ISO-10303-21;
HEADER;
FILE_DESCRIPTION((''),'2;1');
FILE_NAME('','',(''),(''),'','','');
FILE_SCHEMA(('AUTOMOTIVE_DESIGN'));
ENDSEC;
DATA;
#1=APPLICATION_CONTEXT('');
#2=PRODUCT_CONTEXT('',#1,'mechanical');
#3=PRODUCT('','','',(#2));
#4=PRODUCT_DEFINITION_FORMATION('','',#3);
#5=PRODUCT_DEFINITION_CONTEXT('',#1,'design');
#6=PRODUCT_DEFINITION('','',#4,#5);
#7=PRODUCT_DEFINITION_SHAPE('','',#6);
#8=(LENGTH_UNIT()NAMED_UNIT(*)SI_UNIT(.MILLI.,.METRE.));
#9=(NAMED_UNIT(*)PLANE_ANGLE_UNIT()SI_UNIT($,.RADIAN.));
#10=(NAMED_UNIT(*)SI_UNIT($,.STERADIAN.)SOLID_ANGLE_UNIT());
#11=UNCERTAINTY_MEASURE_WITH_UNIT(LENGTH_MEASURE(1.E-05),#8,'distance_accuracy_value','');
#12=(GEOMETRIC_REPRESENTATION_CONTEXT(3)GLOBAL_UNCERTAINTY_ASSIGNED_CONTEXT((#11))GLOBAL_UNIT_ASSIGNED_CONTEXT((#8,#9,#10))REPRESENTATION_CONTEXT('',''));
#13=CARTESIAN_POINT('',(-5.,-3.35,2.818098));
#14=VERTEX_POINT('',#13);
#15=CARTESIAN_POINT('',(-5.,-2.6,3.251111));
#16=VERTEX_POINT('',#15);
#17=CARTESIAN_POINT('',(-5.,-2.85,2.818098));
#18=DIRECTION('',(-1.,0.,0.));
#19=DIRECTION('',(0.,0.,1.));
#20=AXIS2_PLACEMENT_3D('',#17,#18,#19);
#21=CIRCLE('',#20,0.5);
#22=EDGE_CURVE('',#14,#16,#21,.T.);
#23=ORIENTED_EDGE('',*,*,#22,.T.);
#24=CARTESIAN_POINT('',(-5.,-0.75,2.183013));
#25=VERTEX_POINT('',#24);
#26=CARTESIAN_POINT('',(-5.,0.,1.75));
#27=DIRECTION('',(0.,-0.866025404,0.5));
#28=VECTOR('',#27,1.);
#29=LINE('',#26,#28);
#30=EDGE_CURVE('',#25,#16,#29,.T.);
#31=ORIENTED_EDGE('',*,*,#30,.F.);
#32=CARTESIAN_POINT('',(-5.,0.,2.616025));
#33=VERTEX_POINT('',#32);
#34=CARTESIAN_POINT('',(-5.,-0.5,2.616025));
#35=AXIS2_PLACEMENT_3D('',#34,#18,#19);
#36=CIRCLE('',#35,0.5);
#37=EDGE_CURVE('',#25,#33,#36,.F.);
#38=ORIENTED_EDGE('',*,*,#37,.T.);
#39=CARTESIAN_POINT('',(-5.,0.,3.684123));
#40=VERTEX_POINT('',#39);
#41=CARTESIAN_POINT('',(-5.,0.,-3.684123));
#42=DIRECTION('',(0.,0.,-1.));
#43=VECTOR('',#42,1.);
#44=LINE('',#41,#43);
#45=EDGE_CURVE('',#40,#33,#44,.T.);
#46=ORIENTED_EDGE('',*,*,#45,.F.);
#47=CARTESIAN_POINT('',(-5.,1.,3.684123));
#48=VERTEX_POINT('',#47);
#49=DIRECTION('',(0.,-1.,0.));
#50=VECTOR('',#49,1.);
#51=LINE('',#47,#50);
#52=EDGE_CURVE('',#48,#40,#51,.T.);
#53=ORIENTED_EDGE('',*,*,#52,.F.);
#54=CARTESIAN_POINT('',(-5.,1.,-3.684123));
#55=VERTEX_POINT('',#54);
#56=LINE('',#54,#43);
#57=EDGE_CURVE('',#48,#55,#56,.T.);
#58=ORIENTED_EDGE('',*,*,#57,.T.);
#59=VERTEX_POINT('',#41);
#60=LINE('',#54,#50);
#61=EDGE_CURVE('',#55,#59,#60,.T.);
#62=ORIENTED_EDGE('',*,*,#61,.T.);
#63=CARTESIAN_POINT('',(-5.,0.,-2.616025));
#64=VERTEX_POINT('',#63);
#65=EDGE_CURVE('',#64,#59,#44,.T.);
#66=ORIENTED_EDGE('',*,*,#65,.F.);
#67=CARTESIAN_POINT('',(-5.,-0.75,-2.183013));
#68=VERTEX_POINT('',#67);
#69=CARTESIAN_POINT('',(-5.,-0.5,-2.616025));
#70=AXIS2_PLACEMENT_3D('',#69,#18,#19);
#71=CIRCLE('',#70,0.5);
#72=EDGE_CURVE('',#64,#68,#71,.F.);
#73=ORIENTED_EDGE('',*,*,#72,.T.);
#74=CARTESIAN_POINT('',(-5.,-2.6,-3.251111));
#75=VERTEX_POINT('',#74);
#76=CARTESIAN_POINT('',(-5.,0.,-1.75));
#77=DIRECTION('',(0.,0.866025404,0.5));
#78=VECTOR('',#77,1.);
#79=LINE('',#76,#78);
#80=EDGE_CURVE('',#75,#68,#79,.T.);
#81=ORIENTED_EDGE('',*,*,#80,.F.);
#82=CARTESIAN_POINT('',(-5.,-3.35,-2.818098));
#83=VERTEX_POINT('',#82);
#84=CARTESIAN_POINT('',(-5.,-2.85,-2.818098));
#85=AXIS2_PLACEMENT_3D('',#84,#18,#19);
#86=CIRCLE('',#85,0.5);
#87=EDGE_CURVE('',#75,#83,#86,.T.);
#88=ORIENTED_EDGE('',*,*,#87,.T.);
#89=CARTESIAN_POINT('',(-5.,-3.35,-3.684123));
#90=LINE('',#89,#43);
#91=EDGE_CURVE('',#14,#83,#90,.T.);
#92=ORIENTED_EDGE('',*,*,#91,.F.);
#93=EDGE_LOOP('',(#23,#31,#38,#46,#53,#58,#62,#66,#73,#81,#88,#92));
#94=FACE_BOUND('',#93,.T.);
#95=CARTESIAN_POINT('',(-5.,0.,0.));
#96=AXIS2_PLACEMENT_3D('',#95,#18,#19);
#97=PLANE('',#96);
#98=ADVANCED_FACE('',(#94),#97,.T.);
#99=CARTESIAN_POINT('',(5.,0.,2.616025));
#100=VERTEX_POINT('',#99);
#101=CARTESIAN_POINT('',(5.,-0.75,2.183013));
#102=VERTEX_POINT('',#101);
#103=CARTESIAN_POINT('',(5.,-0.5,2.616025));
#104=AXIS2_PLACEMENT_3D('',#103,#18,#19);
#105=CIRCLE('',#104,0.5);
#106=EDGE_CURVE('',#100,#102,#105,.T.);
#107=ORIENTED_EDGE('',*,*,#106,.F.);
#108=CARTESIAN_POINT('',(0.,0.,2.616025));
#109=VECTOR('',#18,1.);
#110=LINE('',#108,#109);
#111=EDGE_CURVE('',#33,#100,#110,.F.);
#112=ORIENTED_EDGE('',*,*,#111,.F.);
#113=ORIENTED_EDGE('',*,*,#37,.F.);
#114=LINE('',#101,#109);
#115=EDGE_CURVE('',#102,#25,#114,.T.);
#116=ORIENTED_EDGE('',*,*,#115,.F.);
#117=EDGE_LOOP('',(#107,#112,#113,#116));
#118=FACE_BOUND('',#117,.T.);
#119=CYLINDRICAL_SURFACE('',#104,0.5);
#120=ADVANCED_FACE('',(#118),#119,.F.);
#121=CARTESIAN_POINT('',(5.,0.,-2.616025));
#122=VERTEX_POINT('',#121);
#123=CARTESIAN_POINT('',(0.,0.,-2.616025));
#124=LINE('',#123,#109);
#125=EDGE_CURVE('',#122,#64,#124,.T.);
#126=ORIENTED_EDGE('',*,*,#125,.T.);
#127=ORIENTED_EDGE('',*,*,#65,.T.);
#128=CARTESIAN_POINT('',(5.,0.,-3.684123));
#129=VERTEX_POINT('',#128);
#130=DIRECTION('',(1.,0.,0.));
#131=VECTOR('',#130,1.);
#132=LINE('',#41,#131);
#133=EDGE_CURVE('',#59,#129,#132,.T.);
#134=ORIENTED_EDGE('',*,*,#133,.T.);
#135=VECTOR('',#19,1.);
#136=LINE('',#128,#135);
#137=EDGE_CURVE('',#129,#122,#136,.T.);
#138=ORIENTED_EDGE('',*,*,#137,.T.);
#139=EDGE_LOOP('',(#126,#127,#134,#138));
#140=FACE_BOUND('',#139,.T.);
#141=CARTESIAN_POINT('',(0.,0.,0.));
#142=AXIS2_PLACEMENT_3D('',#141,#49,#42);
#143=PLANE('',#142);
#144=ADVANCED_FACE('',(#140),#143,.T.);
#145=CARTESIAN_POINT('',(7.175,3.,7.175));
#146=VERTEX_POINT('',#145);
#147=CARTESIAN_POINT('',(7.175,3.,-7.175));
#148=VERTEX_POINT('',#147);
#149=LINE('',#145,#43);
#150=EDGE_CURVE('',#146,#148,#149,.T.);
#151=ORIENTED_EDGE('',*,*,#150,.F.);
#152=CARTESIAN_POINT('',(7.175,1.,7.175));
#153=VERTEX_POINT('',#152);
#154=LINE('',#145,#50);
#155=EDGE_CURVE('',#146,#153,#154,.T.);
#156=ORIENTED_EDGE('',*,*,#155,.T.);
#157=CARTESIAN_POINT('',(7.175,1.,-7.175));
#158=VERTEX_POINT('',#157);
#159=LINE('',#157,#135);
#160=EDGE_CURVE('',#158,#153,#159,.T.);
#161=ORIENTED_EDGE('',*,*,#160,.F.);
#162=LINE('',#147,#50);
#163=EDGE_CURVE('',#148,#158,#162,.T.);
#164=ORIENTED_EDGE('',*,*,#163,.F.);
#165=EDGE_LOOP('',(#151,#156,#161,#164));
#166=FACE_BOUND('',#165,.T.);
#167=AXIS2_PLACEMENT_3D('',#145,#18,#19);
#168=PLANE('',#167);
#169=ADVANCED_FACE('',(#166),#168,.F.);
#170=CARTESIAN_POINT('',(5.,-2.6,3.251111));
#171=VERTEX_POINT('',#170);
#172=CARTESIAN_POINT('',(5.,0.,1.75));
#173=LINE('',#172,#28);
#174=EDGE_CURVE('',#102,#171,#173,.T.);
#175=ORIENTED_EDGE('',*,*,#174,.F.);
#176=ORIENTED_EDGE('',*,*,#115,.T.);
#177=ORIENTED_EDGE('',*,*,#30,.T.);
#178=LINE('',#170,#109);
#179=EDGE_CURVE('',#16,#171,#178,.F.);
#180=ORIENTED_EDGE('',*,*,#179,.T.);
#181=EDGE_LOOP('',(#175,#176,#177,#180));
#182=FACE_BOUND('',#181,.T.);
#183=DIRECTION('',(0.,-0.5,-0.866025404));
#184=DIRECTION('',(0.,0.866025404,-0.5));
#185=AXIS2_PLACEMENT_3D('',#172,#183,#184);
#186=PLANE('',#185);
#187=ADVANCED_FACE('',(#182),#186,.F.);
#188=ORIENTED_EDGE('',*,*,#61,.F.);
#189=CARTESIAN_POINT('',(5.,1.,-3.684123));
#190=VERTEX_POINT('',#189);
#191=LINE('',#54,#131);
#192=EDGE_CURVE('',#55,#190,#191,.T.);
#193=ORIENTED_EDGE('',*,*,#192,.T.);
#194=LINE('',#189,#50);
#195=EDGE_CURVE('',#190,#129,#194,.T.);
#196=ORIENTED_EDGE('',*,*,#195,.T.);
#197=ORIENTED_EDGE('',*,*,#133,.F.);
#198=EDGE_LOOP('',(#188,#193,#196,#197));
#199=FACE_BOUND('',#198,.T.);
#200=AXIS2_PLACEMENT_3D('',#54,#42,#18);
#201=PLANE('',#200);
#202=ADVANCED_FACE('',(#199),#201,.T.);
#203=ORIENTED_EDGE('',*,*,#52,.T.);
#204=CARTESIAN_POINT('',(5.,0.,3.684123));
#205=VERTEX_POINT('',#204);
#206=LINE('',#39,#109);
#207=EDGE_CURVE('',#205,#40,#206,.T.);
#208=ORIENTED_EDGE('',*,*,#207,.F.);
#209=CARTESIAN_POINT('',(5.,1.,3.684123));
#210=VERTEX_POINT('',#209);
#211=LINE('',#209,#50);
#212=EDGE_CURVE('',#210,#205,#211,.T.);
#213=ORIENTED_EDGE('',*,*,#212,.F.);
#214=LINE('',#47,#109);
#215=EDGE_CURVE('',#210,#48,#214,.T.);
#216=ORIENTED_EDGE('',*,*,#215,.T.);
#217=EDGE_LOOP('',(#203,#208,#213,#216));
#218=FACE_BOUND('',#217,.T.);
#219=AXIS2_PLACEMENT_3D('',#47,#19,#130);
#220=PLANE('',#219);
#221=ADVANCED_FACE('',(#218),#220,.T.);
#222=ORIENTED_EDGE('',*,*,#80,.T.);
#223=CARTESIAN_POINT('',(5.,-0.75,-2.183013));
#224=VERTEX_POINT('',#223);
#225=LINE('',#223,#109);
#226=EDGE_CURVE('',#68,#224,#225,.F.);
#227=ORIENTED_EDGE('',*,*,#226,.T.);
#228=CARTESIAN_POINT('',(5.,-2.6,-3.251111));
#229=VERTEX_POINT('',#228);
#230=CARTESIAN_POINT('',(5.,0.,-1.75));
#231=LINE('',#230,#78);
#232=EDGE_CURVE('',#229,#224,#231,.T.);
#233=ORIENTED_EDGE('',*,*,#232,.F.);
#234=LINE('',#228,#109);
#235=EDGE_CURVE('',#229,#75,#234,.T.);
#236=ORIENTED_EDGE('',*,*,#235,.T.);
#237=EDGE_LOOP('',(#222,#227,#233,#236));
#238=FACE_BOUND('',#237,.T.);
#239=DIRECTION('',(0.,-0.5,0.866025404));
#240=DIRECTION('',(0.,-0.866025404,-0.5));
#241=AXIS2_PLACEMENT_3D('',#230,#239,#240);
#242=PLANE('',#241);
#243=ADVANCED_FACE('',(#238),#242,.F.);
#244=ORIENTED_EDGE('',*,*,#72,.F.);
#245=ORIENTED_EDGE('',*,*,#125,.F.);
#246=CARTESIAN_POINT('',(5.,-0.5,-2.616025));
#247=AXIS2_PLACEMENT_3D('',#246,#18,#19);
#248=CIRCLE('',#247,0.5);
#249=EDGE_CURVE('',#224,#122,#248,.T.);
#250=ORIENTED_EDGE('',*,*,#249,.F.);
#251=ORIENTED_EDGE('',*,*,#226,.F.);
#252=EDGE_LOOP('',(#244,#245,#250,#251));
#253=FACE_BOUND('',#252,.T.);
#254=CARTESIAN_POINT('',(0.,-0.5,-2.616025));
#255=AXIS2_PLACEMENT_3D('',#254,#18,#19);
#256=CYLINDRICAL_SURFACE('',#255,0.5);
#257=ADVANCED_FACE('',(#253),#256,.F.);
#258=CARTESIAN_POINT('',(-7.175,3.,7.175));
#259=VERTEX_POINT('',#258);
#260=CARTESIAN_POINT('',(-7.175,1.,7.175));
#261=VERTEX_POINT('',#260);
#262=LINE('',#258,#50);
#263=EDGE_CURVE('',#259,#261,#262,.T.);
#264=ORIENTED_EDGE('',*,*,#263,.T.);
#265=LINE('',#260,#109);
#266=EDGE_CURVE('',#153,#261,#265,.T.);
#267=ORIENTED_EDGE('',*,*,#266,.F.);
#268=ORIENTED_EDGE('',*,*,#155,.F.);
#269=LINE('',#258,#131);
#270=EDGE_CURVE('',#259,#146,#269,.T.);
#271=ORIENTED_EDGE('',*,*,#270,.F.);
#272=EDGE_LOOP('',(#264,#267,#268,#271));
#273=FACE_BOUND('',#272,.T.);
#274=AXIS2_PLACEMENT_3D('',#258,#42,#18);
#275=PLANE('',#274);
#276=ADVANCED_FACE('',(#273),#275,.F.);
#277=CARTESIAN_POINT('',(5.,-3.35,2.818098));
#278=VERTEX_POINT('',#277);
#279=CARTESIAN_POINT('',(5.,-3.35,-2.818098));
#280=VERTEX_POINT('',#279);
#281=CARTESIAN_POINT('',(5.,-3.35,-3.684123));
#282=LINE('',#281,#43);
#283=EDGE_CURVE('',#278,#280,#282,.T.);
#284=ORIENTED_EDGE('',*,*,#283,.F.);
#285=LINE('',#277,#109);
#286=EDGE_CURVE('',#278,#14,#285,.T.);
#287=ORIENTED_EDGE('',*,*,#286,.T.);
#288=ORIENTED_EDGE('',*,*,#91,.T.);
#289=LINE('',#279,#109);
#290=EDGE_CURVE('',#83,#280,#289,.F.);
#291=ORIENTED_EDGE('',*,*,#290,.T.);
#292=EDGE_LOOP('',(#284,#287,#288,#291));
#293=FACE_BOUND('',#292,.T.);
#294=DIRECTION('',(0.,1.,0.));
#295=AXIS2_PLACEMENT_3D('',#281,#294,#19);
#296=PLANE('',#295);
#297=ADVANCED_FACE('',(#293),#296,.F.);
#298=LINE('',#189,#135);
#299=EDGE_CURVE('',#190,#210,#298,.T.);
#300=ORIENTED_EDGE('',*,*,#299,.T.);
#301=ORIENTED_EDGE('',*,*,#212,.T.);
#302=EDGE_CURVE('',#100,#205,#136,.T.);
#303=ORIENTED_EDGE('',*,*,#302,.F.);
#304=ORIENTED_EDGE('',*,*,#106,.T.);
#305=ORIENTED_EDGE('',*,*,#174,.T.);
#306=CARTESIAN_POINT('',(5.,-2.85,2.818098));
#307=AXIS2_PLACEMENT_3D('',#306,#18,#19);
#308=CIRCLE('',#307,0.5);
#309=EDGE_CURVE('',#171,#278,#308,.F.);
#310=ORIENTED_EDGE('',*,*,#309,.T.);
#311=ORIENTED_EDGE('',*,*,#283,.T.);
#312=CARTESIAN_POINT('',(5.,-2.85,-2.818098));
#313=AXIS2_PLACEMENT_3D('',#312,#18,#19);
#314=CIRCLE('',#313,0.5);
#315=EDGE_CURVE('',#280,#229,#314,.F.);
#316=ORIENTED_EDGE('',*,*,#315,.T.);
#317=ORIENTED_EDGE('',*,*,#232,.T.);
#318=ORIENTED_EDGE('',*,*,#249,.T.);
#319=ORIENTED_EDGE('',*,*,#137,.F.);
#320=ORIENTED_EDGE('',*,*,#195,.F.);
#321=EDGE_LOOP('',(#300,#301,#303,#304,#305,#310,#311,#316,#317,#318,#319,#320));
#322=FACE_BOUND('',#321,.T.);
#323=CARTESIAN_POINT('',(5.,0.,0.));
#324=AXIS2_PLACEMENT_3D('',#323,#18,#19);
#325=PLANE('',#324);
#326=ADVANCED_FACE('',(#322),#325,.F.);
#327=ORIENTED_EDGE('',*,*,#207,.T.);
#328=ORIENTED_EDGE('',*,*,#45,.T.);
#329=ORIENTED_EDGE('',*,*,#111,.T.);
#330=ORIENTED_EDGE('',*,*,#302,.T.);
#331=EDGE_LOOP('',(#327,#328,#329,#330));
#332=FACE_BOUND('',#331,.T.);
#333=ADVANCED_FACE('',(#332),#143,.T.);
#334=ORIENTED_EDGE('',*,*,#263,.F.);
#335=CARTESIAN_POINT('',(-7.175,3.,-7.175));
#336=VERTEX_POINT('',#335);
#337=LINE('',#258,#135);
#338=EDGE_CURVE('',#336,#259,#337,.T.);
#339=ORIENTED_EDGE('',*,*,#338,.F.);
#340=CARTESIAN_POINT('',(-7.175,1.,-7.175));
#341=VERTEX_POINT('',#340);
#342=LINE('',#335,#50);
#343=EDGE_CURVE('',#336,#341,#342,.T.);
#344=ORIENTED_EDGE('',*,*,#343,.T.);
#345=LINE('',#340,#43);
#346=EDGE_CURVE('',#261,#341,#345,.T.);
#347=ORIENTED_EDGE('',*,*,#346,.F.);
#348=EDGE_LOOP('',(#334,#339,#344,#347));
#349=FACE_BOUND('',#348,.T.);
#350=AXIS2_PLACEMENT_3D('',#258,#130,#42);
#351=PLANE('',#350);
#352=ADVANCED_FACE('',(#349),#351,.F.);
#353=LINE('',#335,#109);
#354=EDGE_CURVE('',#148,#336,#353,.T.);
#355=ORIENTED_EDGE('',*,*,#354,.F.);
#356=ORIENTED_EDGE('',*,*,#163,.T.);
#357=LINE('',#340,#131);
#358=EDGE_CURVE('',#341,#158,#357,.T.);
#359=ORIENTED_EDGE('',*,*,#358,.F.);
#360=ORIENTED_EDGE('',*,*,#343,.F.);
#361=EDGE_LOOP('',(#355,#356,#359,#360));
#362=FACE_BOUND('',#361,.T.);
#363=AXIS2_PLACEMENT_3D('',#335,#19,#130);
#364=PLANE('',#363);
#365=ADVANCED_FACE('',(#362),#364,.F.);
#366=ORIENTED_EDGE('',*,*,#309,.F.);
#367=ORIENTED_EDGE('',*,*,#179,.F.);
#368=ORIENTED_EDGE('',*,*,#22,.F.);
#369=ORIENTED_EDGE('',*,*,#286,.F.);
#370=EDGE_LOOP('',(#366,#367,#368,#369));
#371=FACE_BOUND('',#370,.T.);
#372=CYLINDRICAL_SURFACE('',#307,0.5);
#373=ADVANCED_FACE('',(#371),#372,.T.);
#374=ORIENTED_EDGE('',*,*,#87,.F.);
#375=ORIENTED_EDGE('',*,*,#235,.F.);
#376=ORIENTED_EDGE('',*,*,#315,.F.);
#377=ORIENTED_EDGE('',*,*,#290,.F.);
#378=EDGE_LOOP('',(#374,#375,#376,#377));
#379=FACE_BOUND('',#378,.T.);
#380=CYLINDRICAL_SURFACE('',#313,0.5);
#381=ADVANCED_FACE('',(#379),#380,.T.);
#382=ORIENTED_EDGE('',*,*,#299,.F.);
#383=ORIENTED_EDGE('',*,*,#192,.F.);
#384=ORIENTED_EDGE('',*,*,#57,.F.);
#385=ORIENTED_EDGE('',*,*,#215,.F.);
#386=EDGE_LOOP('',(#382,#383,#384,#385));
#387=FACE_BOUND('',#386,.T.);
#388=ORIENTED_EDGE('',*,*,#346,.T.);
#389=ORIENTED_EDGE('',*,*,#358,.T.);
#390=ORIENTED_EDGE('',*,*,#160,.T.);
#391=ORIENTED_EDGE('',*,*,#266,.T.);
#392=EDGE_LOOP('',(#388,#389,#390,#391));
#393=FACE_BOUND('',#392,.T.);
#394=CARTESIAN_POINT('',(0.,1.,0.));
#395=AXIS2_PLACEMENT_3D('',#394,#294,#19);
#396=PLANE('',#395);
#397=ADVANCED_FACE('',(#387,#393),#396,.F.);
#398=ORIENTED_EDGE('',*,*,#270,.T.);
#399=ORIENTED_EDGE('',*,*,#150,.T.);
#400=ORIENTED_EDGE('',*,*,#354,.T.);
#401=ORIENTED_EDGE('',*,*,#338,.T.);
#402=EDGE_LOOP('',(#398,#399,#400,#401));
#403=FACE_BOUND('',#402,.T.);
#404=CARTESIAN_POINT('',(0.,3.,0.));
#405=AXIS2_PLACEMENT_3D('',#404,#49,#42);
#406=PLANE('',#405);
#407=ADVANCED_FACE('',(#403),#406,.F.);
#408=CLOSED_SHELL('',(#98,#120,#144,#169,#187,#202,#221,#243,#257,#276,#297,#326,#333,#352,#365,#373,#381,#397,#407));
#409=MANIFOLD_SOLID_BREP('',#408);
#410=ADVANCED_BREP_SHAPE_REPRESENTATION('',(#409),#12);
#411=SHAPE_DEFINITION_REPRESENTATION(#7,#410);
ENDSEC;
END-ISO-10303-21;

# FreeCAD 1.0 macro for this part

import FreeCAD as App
import Part
import Sketcher
Q = App.Units.Quantity


def edges_at(feature, points):
    """Names of the edges that pass closest to the given points."""
    edges = feature.Shape.Edges
    near = lambda p: min(range(len(edges)), key=lambda i: edges[i].distToShape(Part.Vertex(*p))[0])
    return sorted({f"Edge{near(p) + 1}" for p in points})


def add_polygon(sketch, points):
    """Adds a closed chain of lines whose ends are joined by coincident constraints."""
    first, n = sketch.GeometryCount, len(points)
    for a, b in zip(points, points[1:] + points[:1]):
        sketch.addGeometry(Part.LineSegment(App.Vector(*a, 0), App.Vector(*b, 0)), False)
    for i in range(n):
        sketch.addConstraint(Sketcher.Constraint("Coincident", first + i, 2, first + (i + 1) % n, 1))

doc = App.newDocument("Part")
body = doc.addObject("PartDesign::Body", "Body")

# Sketch on XZ plane
sketch1 = body.newObject("Sketcher::SketchObject", "Sketch")
sketch1.AttachmentSupport = (doc.getObject("XZ_Plane"), [""])
sketch1.MapMode = "FlatFace"
add_polygon(sketch1, [(-7, -7), (-7, 7), (7, 7), (7, -7)])  # lines 0-3
sketch1.addConstraint(Sketcher.Constraint("Vertical", 0))
sketch1.addConstraint(Sketcher.Constraint("Horizontal", 1))
sketch1.addConstraint(Sketcher.Constraint("Vertical", 2))
sketch1.addConstraint(Sketcher.Constraint("Horizontal", 3))
sketch1.addConstraint(Sketcher.Constraint("Symmetric", 0, 2, 2, 2, -1, 1))
sketch1.addConstraint(Sketcher.Constraint("Equal", 3, 0))
sketch1.addConstraint(Sketcher.Constraint("DistanceX", 1, 1, 1, 2, 14.35))
pad1 = body.newObject("PartDesign::Pad", "Pad")
pad1.Profile = sketch1
pad1.Length = 3
pad1.Reversed = True

# Sketch on YZ plane
sketch2 = body.newObject("Sketcher::SketchObject", "Sketch001")
sketch2.AttachmentSupport = (doc.getObject("YZ_Plane"), [""])
sketch2.MapMode = "FlatFace"
add_polygon(sketch2, [(0, -1.8), (0, 1.8), (-3.4, 3.7), (-3.4, -3.7)])  # lines 0-3
sketch2.addConstraint(Sketcher.Constraint("Vertical", 0))
sketch2.addConstraint(Sketcher.Constraint("Vertical", 2))
sketch2.addConstraint(Sketcher.Constraint("Symmetric", 0, 2, 3, 2, -1, 1))
sketch2.addConstraint(Sketcher.Constraint("Equal", 1, 3))
sketch2.addConstraint(Sketcher.Constraint("Angle", 1, Q("150 deg")))
sketch2.addConstraint(Sketcher.Constraint("DistanceY", 0, 1, 0, 2, 3.5))
sketch2.addConstraint(Sketcher.Constraint("DistanceX", 1, 2, -1, 1, 3.35))
pad2 = body.newObject("PartDesign::Pad", "Pad001")
pad2.Profile = sketch2
pad2.Length = 10
pad2.Midplane = True

# Sketch on XZ plane
sketch3 = body.newObject("Sketcher::SketchObject", "Sketch002")
sketch3.AttachmentSupport = (doc.getObject("XZ_Plane"), [""])
sketch3.MapMode = "FlatFace"
add_polygon(sketch3, [(-7, 7), (-7, -7), (7, -7), (7, 7)])  # lines 0-3
add_polygon(sketch3, [(5, -4), (-5, -4), (-5, 4), (5, 4)])  # lines 4-7
sketch3.addConstraint(Sketcher.Constraint("Vertical", 0))
sketch3.addConstraint(Sketcher.Constraint("Horizontal", 1))
sketch3.addConstraint(Sketcher.Constraint("Vertical", 2))
sketch3.addConstraint(Sketcher.Constraint("Horizontal", 3))
sketch3.addConstraint(Sketcher.Constraint("Horizontal", 4))
sketch3.addConstraint(Sketcher.Constraint("Vertical", 5))
sketch3.addConstraint(Sketcher.Constraint("Horizontal", 6))
sketch3.addConstraint(Sketcher.Constraint("Vertical", 7))
sketch3.addConstraint(Sketcher.Constraint("Symmetric", 0, 2, 2, 2, -1, 1))
sketch3.addConstraint(Sketcher.Constraint("Symmetric", 4, 2, 6, 2, -1, 1))
sketch3.addConstraint(Sketcher.Constraint("Equal", 3, 0))
sketch3.addConstraint(Sketcher.Constraint("DistanceX", 4, 2, 4, 1, 10.0))
sketch3.addConstraint(Sketcher.Constraint("DistanceX", 1, 1, 1, 2, 14.35))
sketch3.addConstraint(Sketcher.Constraint("DistanceY", 5, 1, 5, 2, 7.368247))
pocket1 = body.newObject("PartDesign::Pocket", "Pocket")
pocket1.Profile = sketch3
pocket1.Length = 1
doc.recompute()

fillet = body.newObject("PartDesign::Fillet", "Fillet")
fillet.Base = (pocket1, edges_at(pocket1, [
    (0, -3.35, -3.684),
    (0, 0, -1.75),
    (0, 0, 1.75),
    (0, -3.35, 3.684),
]))
fillet.Radius = 0.5

doc.recompute()
